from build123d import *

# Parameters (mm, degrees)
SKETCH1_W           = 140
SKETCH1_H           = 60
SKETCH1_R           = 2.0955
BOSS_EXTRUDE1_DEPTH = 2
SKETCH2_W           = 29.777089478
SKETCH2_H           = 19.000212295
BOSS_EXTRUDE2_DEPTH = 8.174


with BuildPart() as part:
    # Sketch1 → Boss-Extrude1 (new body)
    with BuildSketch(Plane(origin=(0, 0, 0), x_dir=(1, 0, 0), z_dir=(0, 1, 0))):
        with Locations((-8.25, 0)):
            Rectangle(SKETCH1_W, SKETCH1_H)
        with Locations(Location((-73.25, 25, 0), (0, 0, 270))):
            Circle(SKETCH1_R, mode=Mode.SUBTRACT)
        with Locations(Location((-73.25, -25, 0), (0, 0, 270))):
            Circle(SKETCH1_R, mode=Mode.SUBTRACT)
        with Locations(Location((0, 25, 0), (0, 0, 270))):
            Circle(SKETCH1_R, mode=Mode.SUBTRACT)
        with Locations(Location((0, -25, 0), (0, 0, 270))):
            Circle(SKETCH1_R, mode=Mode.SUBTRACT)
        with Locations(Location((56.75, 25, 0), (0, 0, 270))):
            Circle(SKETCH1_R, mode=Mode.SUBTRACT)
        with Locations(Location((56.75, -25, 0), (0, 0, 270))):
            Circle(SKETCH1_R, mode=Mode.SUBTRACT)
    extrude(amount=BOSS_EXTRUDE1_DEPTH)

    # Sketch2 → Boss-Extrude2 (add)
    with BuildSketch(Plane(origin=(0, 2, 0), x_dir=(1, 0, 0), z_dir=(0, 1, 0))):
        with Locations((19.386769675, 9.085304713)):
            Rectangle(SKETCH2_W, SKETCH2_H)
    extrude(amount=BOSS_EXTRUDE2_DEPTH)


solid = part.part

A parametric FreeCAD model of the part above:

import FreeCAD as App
import Part
import Sketcher

V = App.Vector
Q = App.Units.Quantity

doc = App.newDocument("Part")
body = doc.addObject("PartDesign::Body", "Body")

# Sketch on XZ plane
sketch1 = body.newObject("Sketcher::SketchObject", "Sketch")
sketch1.AttachmentSupport = (doc.getObject("XZ_Plane"), [""])
sketch1.MapMode = "FlatFace"
sketch1.addGeometry(Part.LineSegment(V(-78.2, -30, 0), V(-78.2, 30, 0)), False)
sketch1.addGeometry(Part.LineSegment(V(-78.2, 30, 0), V(61.8, 30, 0)), False)
sketch1.addGeometry(Part.LineSegment(V(61.8, 30, 0), V(61.8, -30, 0)), False)
sketch1.addGeometry(Part.LineSegment(V(61.8, -30, 0), V(-78.2, -30, 0)), False)
sketch1.addGeometry(Part.Circle(V(-73.2, 25, 0), V(0, 0, 1), 2.1), False)
sketch1.addGeometry(Part.Circle(V(0, 25, 0), V(0, 0, 1), 2.1), False)
sketch1.addGeometry(Part.Circle(V(56.8, 25, 0), V(0, 0, 1), 2.1), False)
sketch1.addGeometry(Part.Circle(V(-73.2, -25, 0), V(0, 0, 1), 2.1), False)
sketch1.addGeometry(Part.Circle(V(0, -25, 0), V(0, 0, 1), 2.1), False)
sketch1.addGeometry(Part.Circle(V(56.8, -25, 0), V(0, 0, 1), 2.1), False)
sketch1.addConstraint(Sketcher.Constraint("Coincident", 0, 2, 1, 1))
sketch1.addConstraint(Sketcher.Constraint("Coincident", 1, 2, 2, 1))
sketch1.addConstraint(Sketcher.Constraint("Coincident", 2, 2, 3, 1))
sketch1.addConstraint(Sketcher.Constraint("Coincident", 3, 2, 0, 1))
sketch1.addConstraint(Sketcher.Constraint("Vertical", 0))
sketch1.addConstraint(Sketcher.Constraint("Horizontal", 1))
sketch1.addConstraint(Sketcher.Constraint("Vertical", 2))
sketch1.addConstraint(Sketcher.Constraint("Horizontal", 3))
sketch1.addConstraint(Sketcher.Constraint("Equal", 4, 5))
sketch1.addConstraint(Sketcher.Constraint("Equal", 5, 6))
sketch1.addConstraint(Sketcher.Constraint("Equal", 6, 7))
sketch1.addConstraint(Sketcher.Constraint("Equal", 7, 8))
sketch1.addConstraint(Sketcher.Constraint("Equal", 8, 9))
sketch1.addConstraint(Sketcher.Constraint("Symmetric", 5, 3, 8, 3, -1, 1))
sketch1.addConstraint(Sketcher.Constraint("Symmetric", 4, 3, 7, 3, -1))
sketch1.addConstraint(Sketcher.Constraint("Symmetric", 6, 3, 9, 3, -1))
sketch1.addConstraint(Sketcher.Constraint("PointOnObject", 5, 3, -2))
sketch1.addConstraint(Sketcher.Constraint("Horizontal", 4, 3, 5, 3))
sketch1.addConstraint(Sketcher.Constraint("Horizontal", 5, 3, 6, 3))
sketch1.addConstraint(Sketcher.Constraint("DistanceX", 1, 1, 1, 2, Q("140 mm")))
sketch1.addConstraint(Sketcher.Constraint("DistanceY", 0, 1, 0, 2, Q("60 mm")))
sketch1.addConstraint(Sketcher.Constraint("Diameter", 4, Q("4.191 mm")))
sketch1.addConstraint(Sketcher.Constraint("DistanceY", -1, 1, 4, 3, Q("25 mm")))
sketch1.addConstraint(Sketcher.Constraint("DistanceY", -1, 1, 0, 2, Q("30 mm")))
sketch1.addConstraint(Sketcher.Constraint("DistanceX", 4, 3, 6, 3, Q("130 mm")))
sketch1.addConstraint(Sketcher.Constraint("DistanceX", 0, 2, 4, 3, Q("5 mm")))
sketch1.addConstraint(Sketcher.Constraint("DistanceX", 4, 3, -1, 1, Q("73.25 mm")))
pad1 = body.newObject("PartDesign::Pad", "Pad")
pad1.Profile = sketch1
pad1.Length = 2
pad1.Reversed = True

# Sketch on XZ plane
sketch2 = body.newObject("Sketcher::SketchObject", "Sketch001")
sketch2.AttachmentSupport = (doc.getObject("XZ_Plane"), [""])
sketch2.MapMode = "FlatFace"
sketch2.AttachmentOffset = App.Placement(V(0, 0, -2), App.Rotation())
sketch2.addGeometry(Part.LineSegment(V(4, -19, 0), V(4, 0, 0)), False)
sketch2.addGeometry(Part.LineSegment(V(4, 0, 0), V(34, 0, 0)), False)
sketch2.addGeometry(Part.LineSegment(V(34, 0, 0), V(34, -19, 0)), False)
sketch2.addGeometry(Part.LineSegment(V(34, -19, 0), V(4, -19, 0)), False)
sketch2.addConstraint(Sketcher.Constraint("Coincident", 0, 2, 1, 1))
sketch2.addConstraint(Sketcher.Constraint("Coincident", 1, 2, 2, 1))
sketch2.addConstraint(Sketcher.Constraint("Coincident", 2, 2, 3, 1))
sketch2.addConstraint(Sketcher.Constraint("Coincident", 3, 2, 0, 1))
sketch2.addConstraint(Sketcher.Constraint("Vertical", 0))
sketch2.addConstraint(Sketcher.Constraint("Horizontal", 1))
sketch2.addConstraint(Sketcher.Constraint("Vertical", 2))
sketch2.addConstraint(Sketcher.Constraint("Horizontal", 3))
sketch2.addConstraint(Sketcher.Constraint("DistanceX", 1, 1, 1, 2, Q("29.777089 mm")))
sketch2.addConstraint(Sketcher.Constraint("DistanceY", -1, 1, 0, 2, Q("0.414801 mm")))
sketch2.addConstraint(Sketcher.Constraint("DistanceY", 0, 1, 0, 2, Q("19.000212 mm")))
sketch2.addConstraint(Sketcher.Constraint("DistanceX", -1, 1, 0, 2, Q("4.498225 mm")))
pad2 = body.newObject("PartDesign::Pad", "Pad001")
pad2.Profile = sketch2
pad2.Length = 8.174
pad2.Reversed = True

doc.recompute()
